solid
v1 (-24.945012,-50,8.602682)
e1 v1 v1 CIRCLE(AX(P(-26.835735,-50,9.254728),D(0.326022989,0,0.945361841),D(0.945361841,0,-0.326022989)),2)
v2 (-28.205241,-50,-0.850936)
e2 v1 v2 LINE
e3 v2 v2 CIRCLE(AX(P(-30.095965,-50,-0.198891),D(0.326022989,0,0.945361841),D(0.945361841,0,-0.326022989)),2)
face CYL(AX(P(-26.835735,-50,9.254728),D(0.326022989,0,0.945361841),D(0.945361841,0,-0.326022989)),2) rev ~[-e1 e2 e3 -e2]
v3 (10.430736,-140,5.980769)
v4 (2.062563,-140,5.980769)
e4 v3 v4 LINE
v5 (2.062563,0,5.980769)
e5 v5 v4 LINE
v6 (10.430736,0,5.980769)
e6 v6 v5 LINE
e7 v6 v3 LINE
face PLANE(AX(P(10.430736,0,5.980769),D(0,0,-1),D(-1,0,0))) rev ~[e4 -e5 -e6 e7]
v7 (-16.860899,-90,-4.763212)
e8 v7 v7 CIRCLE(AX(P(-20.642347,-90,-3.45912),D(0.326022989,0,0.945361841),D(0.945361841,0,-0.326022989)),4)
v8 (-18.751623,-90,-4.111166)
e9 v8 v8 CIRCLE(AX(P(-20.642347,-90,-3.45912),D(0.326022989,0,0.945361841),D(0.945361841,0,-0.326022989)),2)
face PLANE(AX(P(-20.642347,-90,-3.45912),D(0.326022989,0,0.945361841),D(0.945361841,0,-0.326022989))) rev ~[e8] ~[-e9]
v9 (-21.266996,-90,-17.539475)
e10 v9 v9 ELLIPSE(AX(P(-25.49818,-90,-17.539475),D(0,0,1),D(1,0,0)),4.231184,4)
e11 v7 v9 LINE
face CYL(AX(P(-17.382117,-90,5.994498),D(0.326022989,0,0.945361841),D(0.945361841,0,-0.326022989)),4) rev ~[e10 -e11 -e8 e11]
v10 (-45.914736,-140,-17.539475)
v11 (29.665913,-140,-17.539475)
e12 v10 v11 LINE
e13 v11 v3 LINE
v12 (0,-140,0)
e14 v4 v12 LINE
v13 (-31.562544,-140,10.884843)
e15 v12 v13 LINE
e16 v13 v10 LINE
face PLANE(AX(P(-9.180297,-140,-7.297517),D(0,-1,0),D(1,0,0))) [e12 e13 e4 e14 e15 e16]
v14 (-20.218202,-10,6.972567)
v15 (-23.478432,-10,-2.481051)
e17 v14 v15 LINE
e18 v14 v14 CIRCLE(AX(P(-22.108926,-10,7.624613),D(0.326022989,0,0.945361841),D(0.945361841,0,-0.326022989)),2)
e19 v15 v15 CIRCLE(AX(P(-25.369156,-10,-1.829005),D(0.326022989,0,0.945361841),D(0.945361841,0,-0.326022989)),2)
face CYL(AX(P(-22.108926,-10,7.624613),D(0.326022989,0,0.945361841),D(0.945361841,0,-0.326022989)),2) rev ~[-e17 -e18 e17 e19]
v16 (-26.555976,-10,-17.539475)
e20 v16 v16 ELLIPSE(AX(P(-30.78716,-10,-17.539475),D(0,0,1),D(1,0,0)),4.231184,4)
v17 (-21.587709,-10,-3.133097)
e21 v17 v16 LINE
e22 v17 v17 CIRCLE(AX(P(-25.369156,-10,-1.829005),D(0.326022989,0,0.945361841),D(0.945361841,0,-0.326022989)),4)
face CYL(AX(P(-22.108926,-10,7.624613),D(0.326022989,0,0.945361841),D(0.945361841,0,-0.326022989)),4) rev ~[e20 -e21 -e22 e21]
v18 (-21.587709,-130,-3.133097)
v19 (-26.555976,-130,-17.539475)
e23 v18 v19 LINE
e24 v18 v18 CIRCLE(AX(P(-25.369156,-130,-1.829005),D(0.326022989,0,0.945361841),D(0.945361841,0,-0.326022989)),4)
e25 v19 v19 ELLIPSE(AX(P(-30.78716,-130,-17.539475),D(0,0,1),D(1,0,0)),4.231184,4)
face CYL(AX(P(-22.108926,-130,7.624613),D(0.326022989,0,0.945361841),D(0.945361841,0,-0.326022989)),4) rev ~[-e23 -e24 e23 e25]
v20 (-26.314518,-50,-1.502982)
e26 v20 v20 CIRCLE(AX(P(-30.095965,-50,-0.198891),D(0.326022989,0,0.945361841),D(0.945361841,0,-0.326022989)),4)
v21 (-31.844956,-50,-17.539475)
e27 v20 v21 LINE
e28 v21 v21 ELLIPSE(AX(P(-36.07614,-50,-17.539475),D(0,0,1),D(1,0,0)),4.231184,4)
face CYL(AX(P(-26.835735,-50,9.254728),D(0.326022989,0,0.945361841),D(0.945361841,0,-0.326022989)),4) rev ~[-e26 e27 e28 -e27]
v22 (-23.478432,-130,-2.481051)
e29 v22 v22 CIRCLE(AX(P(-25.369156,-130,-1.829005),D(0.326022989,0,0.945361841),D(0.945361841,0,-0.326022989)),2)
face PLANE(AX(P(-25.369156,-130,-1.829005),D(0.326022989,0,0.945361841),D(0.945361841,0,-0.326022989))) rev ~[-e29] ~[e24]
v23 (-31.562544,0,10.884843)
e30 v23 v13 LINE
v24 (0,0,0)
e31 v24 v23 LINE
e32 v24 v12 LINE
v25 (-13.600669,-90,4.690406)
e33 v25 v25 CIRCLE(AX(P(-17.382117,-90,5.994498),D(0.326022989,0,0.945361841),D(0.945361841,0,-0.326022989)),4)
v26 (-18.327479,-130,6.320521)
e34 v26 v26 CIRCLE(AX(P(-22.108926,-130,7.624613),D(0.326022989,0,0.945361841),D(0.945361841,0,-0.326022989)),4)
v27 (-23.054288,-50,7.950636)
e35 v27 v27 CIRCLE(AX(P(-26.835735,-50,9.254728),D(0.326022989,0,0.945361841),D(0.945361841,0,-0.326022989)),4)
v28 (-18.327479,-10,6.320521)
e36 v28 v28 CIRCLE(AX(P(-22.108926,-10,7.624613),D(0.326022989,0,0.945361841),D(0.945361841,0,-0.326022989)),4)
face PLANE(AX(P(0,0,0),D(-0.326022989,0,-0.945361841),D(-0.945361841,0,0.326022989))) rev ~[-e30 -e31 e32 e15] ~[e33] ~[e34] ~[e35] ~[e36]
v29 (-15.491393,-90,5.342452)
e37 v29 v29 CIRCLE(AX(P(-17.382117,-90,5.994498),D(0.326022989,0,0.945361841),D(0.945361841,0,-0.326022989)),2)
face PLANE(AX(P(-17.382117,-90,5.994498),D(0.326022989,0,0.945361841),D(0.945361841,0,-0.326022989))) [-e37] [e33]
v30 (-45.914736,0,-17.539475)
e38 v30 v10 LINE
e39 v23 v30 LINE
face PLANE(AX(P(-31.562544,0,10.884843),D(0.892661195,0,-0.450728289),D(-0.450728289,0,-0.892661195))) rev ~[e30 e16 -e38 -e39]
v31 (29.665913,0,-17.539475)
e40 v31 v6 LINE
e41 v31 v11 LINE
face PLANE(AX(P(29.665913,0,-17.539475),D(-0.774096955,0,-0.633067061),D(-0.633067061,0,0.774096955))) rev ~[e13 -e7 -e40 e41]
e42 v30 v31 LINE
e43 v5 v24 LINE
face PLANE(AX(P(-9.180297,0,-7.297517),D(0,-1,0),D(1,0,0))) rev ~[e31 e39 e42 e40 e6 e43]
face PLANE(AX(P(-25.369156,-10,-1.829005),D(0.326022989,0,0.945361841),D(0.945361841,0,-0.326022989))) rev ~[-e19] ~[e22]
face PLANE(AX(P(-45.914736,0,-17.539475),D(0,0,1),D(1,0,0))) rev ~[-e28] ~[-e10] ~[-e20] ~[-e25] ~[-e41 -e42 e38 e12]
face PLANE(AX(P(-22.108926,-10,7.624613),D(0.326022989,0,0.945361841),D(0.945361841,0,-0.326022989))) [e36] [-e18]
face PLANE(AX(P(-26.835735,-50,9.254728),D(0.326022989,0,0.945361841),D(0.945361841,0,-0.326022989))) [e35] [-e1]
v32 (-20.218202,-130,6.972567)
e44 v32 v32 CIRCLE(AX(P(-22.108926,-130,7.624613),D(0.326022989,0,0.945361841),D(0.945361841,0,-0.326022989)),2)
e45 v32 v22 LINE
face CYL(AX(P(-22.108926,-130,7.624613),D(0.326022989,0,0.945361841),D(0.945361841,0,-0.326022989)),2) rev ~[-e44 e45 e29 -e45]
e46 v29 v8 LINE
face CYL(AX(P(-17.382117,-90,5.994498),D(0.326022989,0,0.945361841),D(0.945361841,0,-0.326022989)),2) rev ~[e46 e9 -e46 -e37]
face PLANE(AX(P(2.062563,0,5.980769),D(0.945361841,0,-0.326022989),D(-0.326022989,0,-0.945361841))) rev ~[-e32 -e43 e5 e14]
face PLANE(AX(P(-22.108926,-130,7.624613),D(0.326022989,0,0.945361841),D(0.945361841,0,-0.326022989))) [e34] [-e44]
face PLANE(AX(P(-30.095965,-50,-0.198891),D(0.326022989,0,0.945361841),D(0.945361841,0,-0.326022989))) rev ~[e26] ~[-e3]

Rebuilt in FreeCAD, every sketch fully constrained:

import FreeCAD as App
import Part
import Sketcher
from FreeCAD import Vector

doc = App.newDocument("Part")
body = doc.addObject("PartDesign::Body", "Body")

# Sketch on XZ plane
sketch1 = body.newObject("Sketcher::SketchObject", "Sketch")
sketch1.AttachmentSupport = (doc.getObject("XZ_Plane"), [""])
sketch1.MapMode = "FlatFace"
sketch1.addGeometry(Part.LineSegment(Vector(2, 6, 0), Vector(0, 0, 0)), False)
sketch1.addGeometry(Part.LineSegment(Vector(0, 0, 0), Vector(-32, 11, 0)), False)
sketch1.addGeometry(Part.LineSegment(Vector(-32, 11, 0), Vector(-46, -18, 0)), False)
sketch1.addGeometry(Part.LineSegment(Vector(-46, -18, 0), Vector(30, -18, 0)), False)
sketch1.addGeometry(Part.LineSegment(Vector(30, -18, 0), Vector(10, 6, 0)), False)
sketch1.addGeometry(Part.LineSegment(Vector(10, 6, 0), Vector(2, 6, 0)), False)
sketch1.addConstraint(Sketcher.Constraint("Coincident", 0, 2, 1, 1))
sketch1.addConstraint(Sketcher.Constraint("Coincident", 1, 2, 2, 1))
sketch1.addConstraint(Sketcher.Constraint("Coincident", 2, 2, 3, 1))
sketch1.addConstraint(Sketcher.Constraint("Coincident", 3, 2, 4, 1))
sketch1.addConstraint(Sketcher.Constraint("Coincident", 4, 2, 5, 1))
sketch1.addConstraint(Sketcher.Constraint("Coincident", 5, 2, 0, 1))
sketch1.addConstraint(Sketcher.Constraint("Horizontal", 3))
sketch1.addConstraint(Sketcher.Constraint("Horizontal", 5))
sketch1.addConstraint(Sketcher.Constraint("Coincident", 0, 2, -1, 1))
sketch1.addConstraint(Sketcher.Constraint("Perpendicular", 0, 1))
sketch1.addConstraint(Sketcher.Constraint("DistanceX", 3, 1, 3, 2, 75.580649))
sketch1.addConstraint(Sketcher.Constraint("DistanceX", 2, 2, 5, 2, 47.977299))
sketch1.addConstraint(Sketcher.Constraint("DistanceX", 5, 2, 5, 1, 8.368174))
sketch1.addConstraint(Sketcher.Constraint("DistanceY", -1, 1, 4, 2, 5.980769))
sketch1.addConstraint(Sketcher.Constraint("DistanceX", 2, 2, 1, 2, 14.352191))
sketch1.addConstraint(Sketcher.Constraint("Distance", 0, 6.326434))
sketch1.addConstraint(Sketcher.Constraint("Distance", 2, 31.842224))
pad1 = body.newObject("PartDesign::Pad", "Pad")
pad1.Profile = sketch1
pad1.Length = 140

# Sketch on an angled plane
sketch2 = body.newObject("Sketcher::SketchObject", "Sketch001")
sketch2.Placement = App.Placement(Vector(0, 0, 0), App.Rotation(Vector(0.945361841, 0, -0.326022989), Vector(0, 1, 0), Vector(0.326022989, 0, 0.945361841), "ZXY"))
sketch2.addGeometry(Part.Circle(Vector(-23.4, -10, 0), Vector(0, 0, 1), 4), False)
sketch2.addGeometry(Part.Circle(Vector(-28.4, -50, 0), Vector(0, 0, 1), 4), False)
sketch2.addGeometry(Part.Circle(Vector(-23.4, -130, 0), Vector(0, 0, 1), 4), False)
sketch2.addGeometry(Part.Circle(Vector(-18.4, -90, 0), Vector(0, 0, 1), 4), False)
sketch2.addConstraint(Sketcher.Constraint("Equal", 0, 1))
sketch2.addConstraint(Sketcher.Constraint("Equal", 1, 2))
sketch2.addConstraint(Sketcher.Constraint("Equal", 2, 3))
sketch2.addConstraint(Sketcher.Constraint("Vertical", 0, 3, 2, 3))
sketch2.addConstraint(Sketcher.Constraint("Diameter", 0, 8.0))
sketch2.addConstraint(Sketcher.Constraint("DistanceY", 0, 3, -1, 1, 10.0))
sketch2.addConstraint(Sketcher.Constraint("DistanceY", 1, 3, -1, 1, 50.0))
sketch2.addConstraint(Sketcher.Constraint("DistanceY", 2, 3, -1, 1, 130.0))
sketch2.addConstraint(Sketcher.Constraint("DistanceY", 3, 3, -1, 1, 90.0))
sketch2.addConstraint(Sketcher.Constraint("DistanceX", 1, 3, 0, 3, 5.0))
sketch2.addConstraint(Sketcher.Constraint("DistanceX", 2, 3, 3, 3, 5.0))
sketch2.addConstraint(Sketcher.Constraint("DistanceX", 0, 3, -1, 1, 23.386734))
pocket1 = body.newObject("PartDesign::Pocket", "Pocket")
pocket1.Profile = sketch2
pocket1.Length = 30

# Sketch on an angled plane
sketch3 = body.newObject("Sketcher::SketchObject", "Sketch002")
sketch3.Placement = App.Placement(Vector(0, 0, 0), App.Rotation(Vector(0.945361841, 0, -0.326022989), Vector(0, 1, 0), Vector(0.326022989, 0, 0.945361841), "ZXY"))
sketch3.addGeometry(Part.Circle(Vector(-23.4, -10, 0), Vector(0, 0, 1), 4), False)
sketch3.addGeometry(Part.Circle(Vector(-23.4, -10, 0), Vector(0, 0, 1), 2), False)
sketch3.addGeometry(Part.Circle(Vector(-23.4, -130, 0), Vector(0, 0, 1), 4), False)
sketch3.addGeometry(Part.Circle(Vector(-23.4, -130, 0), Vector(0, 0, 1), 2), False)
sketch3.addGeometry(Part.Circle(Vector(-28.4, -50, 0), Vector(0, 0, 1), 4), False)
sketch3.addGeometry(Part.Circle(Vector(-28.4, -50, 0), Vector(0, 0, 1), 2), False)
sketch3.addGeometry(Part.Circle(Vector(-18.4, -90, 0), Vector(0, 0, 1), 4), False)
sketch3.addGeometry(Part.Circle(Vector(-18.4, -90, 0), Vector(0, 0, 1), 2), False)
sketch3.addConstraint(Sketcher.Constraint("Coincident", 1, 3, 0, 3))
sketch3.addConstraint(Sketcher.Constraint("Coincident", 3, 3, 2, 3))
sketch3.addConstraint(Sketcher.Constraint("Coincident", 5, 3, 4, 3))
sketch3.addConstraint(Sketcher.Constraint("Coincident", 7, 3, 6, 3))
sketch3.addConstraint(Sketcher.Constraint("Equal", 0, 2))
sketch3.addConstraint(Sketcher.Constraint("Equal", 1, 3))
sketch3.addConstraint(Sketcher.Constraint("Equal", 2, 4))
sketch3.addConstraint(Sketcher.Constraint("Equal", 3, 5))
sketch3.addConstraint(Sketcher.Constraint("Equal", 4, 6))
sketch3.addConstraint(Sketcher.Constraint("Equal", 5, 7))
sketch3.addConstraint(Sketcher.Constraint("Vertical", 1, 3, 2, 3))
sketch3.addConstraint(Sketcher.Constraint("Diameter", 0, 8.0))
sketch3.addConstraint(Sketcher.Constraint("Diameter", 1, 4.0))
sketch3.addConstraint(Sketcher.Constraint("DistanceY", 0, 3, -1, 1, 10.0))
sketch3.addConstraint(Sketcher.Constraint("DistanceY", 2, 3, -1, 1, 130.0))
sketch3.addConstraint(Sketcher.Constraint("DistanceY", 4, 3, -1, 1, 50.0))
sketch3.addConstraint(Sketcher.Constraint("DistanceY", 6, 3, -1, 1, 90.0))
sketch3.addConstraint(Sketcher.Constraint("DistanceX", 4, 3, 0, 3, 5.0))
sketch3.addConstraint(Sketcher.Constraint("DistanceX", 2, 3, 6, 3, 5.0))
sketch3.addConstraint(Sketcher.Constraint("DistanceX", 0, 3, -1, 1, 23.386734))
pad2 = body.newObject("PartDesign::Pad", "Pad001")
pad2.Profile = sketch3
pad2.Length = 10
pad2.Reversed = True

doc.recompute()
